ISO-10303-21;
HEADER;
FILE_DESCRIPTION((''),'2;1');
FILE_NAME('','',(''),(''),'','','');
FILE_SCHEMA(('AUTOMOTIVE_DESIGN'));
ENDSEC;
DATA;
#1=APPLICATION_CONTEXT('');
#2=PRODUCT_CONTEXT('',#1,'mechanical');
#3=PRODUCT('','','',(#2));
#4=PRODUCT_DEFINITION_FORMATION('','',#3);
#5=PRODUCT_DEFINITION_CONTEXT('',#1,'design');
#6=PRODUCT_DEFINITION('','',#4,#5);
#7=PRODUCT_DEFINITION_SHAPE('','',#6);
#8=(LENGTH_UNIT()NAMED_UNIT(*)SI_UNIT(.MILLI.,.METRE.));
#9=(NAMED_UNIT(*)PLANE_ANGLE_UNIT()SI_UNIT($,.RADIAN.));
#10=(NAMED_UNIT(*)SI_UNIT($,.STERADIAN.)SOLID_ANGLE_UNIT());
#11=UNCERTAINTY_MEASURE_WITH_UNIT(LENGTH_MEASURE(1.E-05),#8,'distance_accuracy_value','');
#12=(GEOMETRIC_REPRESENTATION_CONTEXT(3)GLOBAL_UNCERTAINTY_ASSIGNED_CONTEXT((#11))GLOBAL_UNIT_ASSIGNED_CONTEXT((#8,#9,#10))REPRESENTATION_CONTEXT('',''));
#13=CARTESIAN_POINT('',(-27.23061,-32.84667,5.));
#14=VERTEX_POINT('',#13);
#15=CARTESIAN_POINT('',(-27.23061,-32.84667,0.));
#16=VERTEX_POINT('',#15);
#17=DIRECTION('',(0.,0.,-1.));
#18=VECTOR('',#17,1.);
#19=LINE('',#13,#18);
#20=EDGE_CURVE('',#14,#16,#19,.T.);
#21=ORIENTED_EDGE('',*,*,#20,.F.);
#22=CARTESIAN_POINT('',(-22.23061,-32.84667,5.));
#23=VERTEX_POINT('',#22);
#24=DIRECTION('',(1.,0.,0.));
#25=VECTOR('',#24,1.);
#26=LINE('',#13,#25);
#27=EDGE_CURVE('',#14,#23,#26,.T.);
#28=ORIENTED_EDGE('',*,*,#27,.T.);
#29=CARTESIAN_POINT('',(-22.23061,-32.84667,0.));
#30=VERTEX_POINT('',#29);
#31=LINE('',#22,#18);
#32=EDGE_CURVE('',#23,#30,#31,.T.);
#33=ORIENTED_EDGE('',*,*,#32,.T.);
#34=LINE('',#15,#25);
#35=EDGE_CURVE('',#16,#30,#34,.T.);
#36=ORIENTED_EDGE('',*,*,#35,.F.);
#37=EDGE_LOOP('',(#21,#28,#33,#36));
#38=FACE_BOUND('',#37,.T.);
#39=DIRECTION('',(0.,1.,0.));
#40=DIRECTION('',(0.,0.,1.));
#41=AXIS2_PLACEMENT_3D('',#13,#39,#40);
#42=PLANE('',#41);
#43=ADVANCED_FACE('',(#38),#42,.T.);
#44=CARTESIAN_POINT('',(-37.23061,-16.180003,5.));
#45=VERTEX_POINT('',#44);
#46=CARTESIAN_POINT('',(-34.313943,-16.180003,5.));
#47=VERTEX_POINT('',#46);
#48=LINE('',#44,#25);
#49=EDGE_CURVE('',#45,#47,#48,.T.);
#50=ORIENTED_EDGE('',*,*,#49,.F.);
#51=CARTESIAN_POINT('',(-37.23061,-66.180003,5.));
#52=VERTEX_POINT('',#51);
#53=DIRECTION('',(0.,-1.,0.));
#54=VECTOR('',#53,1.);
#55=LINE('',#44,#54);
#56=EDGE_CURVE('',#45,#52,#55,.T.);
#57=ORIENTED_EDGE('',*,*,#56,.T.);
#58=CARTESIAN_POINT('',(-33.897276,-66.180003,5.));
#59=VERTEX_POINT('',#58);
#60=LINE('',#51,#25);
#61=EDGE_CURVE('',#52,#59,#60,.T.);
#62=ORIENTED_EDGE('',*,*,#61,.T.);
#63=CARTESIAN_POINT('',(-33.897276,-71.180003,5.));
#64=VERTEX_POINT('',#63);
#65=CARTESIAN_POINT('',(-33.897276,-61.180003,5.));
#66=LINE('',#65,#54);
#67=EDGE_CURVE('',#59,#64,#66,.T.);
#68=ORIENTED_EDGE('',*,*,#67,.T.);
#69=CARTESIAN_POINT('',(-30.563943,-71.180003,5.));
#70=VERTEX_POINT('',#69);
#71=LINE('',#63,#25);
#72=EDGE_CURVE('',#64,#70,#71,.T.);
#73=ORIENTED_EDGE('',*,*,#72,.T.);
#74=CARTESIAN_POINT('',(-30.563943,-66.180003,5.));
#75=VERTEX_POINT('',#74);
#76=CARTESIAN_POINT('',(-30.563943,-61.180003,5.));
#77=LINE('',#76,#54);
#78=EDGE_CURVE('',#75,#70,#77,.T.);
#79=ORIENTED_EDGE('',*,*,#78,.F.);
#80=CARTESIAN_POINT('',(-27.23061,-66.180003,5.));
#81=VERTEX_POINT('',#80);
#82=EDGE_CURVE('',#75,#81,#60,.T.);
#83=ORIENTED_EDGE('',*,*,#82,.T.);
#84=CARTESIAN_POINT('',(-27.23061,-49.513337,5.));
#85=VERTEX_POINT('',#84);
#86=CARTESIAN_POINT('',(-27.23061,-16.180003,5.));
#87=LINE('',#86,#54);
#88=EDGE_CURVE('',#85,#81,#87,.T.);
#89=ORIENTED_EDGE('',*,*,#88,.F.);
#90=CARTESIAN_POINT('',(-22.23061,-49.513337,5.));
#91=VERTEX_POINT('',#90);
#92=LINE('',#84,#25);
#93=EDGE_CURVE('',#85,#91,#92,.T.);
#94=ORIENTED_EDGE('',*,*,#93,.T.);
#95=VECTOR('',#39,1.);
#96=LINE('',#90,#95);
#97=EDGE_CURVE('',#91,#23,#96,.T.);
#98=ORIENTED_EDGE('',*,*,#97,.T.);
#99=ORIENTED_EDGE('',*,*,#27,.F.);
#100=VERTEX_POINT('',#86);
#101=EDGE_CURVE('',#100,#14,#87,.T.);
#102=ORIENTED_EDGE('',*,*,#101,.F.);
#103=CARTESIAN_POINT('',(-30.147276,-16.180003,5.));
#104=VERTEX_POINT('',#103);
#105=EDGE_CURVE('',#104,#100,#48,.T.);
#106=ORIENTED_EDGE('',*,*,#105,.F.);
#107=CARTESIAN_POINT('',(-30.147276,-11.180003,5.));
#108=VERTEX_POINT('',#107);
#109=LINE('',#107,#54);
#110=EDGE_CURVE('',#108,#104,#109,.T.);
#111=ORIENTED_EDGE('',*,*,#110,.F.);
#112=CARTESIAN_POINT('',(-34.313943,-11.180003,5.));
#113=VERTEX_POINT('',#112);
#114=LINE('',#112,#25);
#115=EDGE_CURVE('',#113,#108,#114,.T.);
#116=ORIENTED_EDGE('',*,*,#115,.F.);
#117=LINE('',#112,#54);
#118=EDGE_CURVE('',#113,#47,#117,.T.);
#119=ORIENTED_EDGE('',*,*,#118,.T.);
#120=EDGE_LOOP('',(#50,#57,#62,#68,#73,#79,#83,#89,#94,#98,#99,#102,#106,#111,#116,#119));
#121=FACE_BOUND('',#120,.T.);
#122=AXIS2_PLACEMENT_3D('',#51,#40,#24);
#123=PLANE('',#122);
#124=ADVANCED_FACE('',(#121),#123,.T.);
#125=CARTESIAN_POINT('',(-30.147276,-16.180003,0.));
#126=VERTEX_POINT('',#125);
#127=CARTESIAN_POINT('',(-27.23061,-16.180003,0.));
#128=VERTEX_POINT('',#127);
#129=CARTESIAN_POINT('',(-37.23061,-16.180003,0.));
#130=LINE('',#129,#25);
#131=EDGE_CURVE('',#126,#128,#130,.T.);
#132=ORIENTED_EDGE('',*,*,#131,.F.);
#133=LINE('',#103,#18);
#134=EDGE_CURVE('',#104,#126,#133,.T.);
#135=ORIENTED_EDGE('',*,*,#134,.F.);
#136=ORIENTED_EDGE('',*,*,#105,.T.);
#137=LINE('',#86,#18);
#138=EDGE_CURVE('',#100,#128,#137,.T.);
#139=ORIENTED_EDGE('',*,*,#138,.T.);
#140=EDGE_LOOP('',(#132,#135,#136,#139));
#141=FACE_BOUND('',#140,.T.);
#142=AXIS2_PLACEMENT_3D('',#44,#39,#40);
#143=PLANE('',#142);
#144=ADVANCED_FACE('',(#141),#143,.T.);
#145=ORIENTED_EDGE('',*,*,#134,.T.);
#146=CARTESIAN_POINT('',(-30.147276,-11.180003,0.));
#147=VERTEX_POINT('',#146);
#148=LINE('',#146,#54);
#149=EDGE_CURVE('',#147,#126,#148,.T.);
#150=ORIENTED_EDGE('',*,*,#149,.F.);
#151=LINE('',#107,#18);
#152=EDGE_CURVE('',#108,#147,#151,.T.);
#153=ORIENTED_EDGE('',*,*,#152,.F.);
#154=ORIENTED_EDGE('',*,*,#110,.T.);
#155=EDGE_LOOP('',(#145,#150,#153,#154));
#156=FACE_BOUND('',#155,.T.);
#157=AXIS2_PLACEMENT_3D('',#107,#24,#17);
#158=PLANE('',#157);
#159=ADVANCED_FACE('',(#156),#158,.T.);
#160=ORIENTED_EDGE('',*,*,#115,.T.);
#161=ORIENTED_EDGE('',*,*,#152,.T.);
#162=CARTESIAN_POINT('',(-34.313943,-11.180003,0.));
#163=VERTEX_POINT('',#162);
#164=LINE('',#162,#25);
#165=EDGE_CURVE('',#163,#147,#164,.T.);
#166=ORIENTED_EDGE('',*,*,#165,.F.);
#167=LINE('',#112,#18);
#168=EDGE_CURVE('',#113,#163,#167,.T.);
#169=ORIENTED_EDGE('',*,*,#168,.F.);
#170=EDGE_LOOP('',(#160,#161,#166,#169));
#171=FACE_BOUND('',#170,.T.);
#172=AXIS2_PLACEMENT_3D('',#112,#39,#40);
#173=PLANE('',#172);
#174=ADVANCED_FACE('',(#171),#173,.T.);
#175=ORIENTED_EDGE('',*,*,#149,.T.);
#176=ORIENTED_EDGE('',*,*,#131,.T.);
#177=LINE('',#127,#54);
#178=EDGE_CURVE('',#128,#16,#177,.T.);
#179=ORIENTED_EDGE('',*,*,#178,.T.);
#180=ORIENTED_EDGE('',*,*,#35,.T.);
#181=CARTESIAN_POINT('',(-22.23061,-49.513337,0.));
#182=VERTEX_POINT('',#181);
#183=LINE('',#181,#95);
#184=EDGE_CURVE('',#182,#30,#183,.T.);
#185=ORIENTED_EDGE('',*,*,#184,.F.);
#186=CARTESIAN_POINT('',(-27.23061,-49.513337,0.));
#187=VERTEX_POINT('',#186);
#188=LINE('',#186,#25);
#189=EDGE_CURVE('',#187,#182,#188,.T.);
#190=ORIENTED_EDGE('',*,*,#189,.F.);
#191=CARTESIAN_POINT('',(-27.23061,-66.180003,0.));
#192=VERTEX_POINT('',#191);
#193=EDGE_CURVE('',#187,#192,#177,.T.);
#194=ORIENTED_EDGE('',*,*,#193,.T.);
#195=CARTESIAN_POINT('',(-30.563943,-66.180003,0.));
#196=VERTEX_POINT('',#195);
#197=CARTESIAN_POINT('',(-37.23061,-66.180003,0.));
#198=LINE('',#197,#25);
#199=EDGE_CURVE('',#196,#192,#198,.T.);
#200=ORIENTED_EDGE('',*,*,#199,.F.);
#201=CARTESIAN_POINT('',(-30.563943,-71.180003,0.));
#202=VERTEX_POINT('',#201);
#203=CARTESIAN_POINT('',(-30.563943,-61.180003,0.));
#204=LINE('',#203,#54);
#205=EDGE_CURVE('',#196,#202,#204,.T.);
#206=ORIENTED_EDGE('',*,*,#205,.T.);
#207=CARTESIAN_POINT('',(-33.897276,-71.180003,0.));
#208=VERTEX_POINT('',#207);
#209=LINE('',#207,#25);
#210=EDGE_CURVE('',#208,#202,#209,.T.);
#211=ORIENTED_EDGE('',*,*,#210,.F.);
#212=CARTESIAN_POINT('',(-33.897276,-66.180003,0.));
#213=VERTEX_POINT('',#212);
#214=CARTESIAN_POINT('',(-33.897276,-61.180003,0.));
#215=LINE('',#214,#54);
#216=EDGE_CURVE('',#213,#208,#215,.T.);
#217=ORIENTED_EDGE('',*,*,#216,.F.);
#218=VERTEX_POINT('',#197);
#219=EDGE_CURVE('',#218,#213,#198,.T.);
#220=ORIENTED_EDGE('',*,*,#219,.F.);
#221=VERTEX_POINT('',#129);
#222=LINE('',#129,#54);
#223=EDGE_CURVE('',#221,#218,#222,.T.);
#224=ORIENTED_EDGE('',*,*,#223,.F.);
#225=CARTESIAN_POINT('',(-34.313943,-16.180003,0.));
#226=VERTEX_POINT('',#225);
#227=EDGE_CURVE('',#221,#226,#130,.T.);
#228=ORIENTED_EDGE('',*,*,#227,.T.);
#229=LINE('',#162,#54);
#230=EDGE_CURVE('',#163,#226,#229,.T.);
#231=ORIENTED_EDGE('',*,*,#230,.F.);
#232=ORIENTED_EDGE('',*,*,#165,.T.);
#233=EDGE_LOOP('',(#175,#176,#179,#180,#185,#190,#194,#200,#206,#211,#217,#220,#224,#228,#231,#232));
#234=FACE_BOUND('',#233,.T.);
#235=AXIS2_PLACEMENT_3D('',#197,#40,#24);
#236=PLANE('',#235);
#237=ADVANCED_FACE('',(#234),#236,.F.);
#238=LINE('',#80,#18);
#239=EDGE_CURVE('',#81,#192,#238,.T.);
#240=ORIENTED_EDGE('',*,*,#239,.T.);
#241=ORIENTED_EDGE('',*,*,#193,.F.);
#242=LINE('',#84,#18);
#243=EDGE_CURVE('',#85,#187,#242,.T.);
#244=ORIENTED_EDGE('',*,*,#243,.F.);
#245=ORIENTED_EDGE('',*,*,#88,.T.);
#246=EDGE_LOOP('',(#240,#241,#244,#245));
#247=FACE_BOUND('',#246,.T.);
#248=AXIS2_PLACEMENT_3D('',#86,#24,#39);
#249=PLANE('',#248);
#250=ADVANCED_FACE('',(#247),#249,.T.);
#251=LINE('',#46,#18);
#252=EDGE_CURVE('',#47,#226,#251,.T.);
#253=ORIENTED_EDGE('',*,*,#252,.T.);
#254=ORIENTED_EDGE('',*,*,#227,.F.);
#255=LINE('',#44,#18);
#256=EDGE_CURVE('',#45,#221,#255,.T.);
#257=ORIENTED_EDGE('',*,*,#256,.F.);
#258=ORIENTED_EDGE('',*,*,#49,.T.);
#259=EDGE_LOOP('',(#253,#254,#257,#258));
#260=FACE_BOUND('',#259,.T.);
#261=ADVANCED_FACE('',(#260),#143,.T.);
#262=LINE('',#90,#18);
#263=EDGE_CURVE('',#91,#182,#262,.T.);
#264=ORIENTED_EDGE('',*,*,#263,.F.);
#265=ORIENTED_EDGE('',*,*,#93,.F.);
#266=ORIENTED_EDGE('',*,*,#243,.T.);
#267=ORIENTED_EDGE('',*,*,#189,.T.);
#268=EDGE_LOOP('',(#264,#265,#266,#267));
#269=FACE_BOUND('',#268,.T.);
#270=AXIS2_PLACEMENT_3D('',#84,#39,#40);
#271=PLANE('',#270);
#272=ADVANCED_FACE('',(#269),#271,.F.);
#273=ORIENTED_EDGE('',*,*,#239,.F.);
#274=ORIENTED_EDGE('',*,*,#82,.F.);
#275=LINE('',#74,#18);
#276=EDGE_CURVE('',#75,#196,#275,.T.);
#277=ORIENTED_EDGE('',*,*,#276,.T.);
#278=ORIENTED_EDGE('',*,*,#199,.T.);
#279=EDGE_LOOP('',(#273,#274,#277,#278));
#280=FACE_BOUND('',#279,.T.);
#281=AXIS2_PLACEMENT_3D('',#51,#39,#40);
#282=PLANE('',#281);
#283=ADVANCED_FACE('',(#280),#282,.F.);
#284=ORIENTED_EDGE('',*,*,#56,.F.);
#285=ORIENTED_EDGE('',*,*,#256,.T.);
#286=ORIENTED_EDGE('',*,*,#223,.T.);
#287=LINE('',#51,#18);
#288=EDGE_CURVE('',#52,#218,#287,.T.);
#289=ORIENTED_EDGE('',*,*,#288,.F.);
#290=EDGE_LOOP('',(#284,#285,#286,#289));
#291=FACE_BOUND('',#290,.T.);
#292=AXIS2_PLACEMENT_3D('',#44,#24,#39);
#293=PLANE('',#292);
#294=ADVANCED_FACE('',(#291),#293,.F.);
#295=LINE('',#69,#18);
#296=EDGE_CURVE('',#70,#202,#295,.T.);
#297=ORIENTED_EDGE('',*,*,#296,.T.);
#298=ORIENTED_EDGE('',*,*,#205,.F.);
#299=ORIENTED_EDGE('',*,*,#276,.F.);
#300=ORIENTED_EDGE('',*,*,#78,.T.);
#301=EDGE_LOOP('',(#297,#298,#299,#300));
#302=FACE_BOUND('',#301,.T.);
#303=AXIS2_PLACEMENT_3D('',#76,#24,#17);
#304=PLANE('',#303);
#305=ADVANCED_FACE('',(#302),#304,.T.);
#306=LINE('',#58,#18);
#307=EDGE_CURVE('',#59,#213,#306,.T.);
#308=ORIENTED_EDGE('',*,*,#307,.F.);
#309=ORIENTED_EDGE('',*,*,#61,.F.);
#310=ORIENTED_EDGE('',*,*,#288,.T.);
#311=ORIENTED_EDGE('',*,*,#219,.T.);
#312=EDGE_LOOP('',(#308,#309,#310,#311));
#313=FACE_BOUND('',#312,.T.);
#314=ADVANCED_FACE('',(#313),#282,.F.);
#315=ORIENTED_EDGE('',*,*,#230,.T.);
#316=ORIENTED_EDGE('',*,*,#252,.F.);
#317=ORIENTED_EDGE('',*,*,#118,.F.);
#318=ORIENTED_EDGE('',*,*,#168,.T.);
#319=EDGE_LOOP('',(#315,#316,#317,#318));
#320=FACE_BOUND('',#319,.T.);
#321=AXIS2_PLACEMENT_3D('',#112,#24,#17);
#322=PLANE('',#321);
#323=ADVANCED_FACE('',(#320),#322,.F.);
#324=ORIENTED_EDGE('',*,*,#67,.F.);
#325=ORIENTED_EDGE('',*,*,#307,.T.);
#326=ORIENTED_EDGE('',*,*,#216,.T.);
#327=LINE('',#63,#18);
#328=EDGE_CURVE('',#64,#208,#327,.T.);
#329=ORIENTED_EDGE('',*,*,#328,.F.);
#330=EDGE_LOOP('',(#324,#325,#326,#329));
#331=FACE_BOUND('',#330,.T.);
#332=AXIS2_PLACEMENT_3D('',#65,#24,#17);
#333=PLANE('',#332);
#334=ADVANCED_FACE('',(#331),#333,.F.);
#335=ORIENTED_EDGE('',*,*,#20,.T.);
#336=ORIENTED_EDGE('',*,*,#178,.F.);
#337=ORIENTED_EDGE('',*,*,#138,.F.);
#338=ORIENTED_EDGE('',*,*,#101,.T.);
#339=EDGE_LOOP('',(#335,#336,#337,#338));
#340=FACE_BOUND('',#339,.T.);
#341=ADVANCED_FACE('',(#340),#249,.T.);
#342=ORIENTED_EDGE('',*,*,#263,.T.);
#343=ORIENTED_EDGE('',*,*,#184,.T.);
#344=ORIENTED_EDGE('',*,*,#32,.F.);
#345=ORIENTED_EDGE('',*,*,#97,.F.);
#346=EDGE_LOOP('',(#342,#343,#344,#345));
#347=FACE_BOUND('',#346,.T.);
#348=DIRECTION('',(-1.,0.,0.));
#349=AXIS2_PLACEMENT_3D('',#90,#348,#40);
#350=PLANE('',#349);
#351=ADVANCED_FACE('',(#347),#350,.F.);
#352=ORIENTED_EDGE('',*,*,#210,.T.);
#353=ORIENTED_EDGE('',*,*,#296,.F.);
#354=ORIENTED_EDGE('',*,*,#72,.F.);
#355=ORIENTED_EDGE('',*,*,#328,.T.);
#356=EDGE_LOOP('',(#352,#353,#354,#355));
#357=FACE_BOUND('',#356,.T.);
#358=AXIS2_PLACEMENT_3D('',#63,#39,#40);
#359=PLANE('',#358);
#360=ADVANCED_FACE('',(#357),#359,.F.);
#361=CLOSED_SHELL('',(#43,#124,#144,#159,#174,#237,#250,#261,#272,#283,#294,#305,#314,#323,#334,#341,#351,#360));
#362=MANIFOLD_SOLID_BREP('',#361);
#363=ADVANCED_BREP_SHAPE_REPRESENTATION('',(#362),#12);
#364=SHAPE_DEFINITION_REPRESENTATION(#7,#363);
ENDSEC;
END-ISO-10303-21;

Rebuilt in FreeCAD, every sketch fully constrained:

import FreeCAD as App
import Part
import Sketcher
from FreeCAD import Vector

doc = App.newDocument("Part")
params = doc.addObject("Spreadsheet::Sheet", "Params")
for row, (alias, value) in enumerate([
    ("sketch1_width", "5 mm"),
    ("sketch1_height", "50 mm"),
    ("pad1_length", "5 mm"),
], start=1):
    params.set(f"A{row}", alias)
    params.set(f"B{row}", "=" + value)
    params.setAlias(f"B{row}", alias)

body = doc.addObject("PartDesign::Body", "Body")

sketch1 = body.newObject("Sketcher::SketchObject", "Sketch")
sketch1.AttachmentSupport = (doc.getObject("XY_Plane"), [""])
sketch1.MapMode = "FlatFace"
sketch1.addGeometry([
    Part.LineSegment(Vector(-37.23061, -16.180003, 0), Vector(-37.23061, -66.180003, 0)),
    Part.LineSegment(Vector(-37.23061, -66.180003, 0), Vector(-33.897276, -66.180003, 0)),
    Part.LineSegment(Vector(-33.897276, -66.180003, 0), Vector(-33.897276, -71.180003, 0)),
    Part.LineSegment(Vector(-33.897276, -71.180003, 0), Vector(-30.563943, -71.180003, 0)),
    Part.LineSegment(Vector(-30.563943, -71.180003, 0), Vector(-30.563943, -66.180003, 0)),
    Part.LineSegment(Vector(-30.563943, -66.180003, 0), Vector(-27.23061, -66.180003, 0)),
    Part.LineSegment(Vector(-27.23061, -66.180003, 0), Vector(-27.23061, -49.513337, 0)),
    Part.LineSegment(Vector(-27.23061, -49.513337, 0), Vector(-22.23061, -49.513337, 0)),
    Part.LineSegment(Vector(-22.23061, -49.513337, 0), Vector(-22.23061, -32.84667, 0)),
    Part.LineSegment(Vector(-22.23061, -32.84667, 0), Vector(-27.23061, -32.84667, 0)),
    Part.LineSegment(Vector(-27.23061, -32.84667, 0), Vector(-27.23061, -16.180003, 0)),
    Part.LineSegment(Vector(-27.23061, -16.180003, 0), Vector(-30.147276, -16.180003, 0)),
    Part.LineSegment(Vector(-30.147276, -16.180003, 0), Vector(-30.147276, -11.180003, 0)),
    Part.LineSegment(Vector(-30.147276, -11.180003, 0), Vector(-34.313943, -11.180003, 0)),
    Part.LineSegment(Vector(-34.313943, -11.180003, 0), Vector(-34.313943, -16.180003, 0)),
    Part.LineSegment(Vector(-34.313943, -16.180003, 0), Vector(-37.23061, -16.180003, 0)),
], False)
sketch1.addConstraint([
    Sketcher.Constraint("Coincident", 0, 2, 1, 1),
    Sketcher.Constraint("Coincident", 1, 2, 2, 1),
    Sketcher.Constraint("Coincident", 2, 2, 3, 1),
    Sketcher.Constraint("Coincident", 3, 2, 4, 1),
    Sketcher.Constraint("Coincident", 4, 2, 5, 1),
    Sketcher.Constraint("Coincident", 5, 2, 6, 1),
    Sketcher.Constraint("Coincident", 6, 2, 7, 1),
    Sketcher.Constraint("Coincident", 7, 2, 8, 1),
    Sketcher.Constraint("Coincident", 8, 2, 9, 1),
    Sketcher.Constraint("Coincident", 9, 2, 10, 1),
    Sketcher.Constraint("Coincident", 10, 2, 11, 1),
    Sketcher.Constraint("Coincident", 11, 2, 12, 1),
    Sketcher.Constraint("Coincident", 12, 2, 13, 1),
    Sketcher.Constraint("Coincident", 13, 2, 14, 1),
    Sketcher.Constraint("Coincident", 14, 2, 15, 1),
    Sketcher.Constraint("Coincident", 15, 2, 0, 1),
    Sketcher.Constraint("Vertical", 0),
    Sketcher.Constraint("Horizontal", 1),
    Sketcher.Constraint("Vertical", 2),
    Sketcher.Constraint("Horizontal", 3),
    Sketcher.Constraint("Vertical", 4),
    Sketcher.Constraint("Horizontal", 5),
    Sketcher.Constraint("Vertical", 6),
    Sketcher.Constraint("Horizontal", 7),
    Sketcher.Constraint("Vertical", 8),
    Sketcher.Constraint("Horizontal", 9),
    Sketcher.Constraint("Vertical", 10),
    Sketcher.Constraint("Horizontal", 11),
    Sketcher.Constraint("Vertical", 12),
    Sketcher.Constraint("Horizontal", 13),
    Sketcher.Constraint("Vertical", 14),
    Sketcher.Constraint("Horizontal", 15),
    Sketcher.Constraint("Horizontal", 1, 2, 4, 2),
    Sketcher.Constraint("Horizontal", 11, 2, 14, 2),
    Sketcher.Constraint("Vertical", 6, 2, 9, 2),
    Sketcher.Constraint("Equal", 1, 3),
    Sketcher.Constraint("Equal", 3, 5),
    Sketcher.Constraint("Equal", 11, 15),
    Sketcher.Constraint("Equal", 9, 2),
    Sketcher.Constraint("Equal", 6, 8),
    Sketcher.Constraint("Equal", 8, 10),
    Sketcher.Constraint("Equal", 4, 12),
    Sketcher.Constraint("DistanceX", 7, 1, 7, 2, 5.0),
    Sketcher.Constraint("DistanceY", 0, 2, 0, 1, 50.0),
    Sketcher.Constraint("DistanceX", 0, 2, 5, 2, 10.0),
    Sketcher.Constraint("DistanceX", 11, 2, 11, 1, 2.916667),
    Sketcher.Constraint("DistanceX", 0, 2, -1, 1, 37.23061),
    Sketcher.Constraint("DistanceY", 8, 2, -1, 1, 32.84667),
])
sketch1.setExpression("Constraints[42]", "Params.sketch1_width")
sketch1.setExpression("Constraints[43]", "Params.sketch1_height")
pad1 = body.newObject("PartDesign::Pad", "Pad")
pad1.Profile = sketch1
pad1.setExpression("Length", "Params.pad1_length")

doc.recompute()
